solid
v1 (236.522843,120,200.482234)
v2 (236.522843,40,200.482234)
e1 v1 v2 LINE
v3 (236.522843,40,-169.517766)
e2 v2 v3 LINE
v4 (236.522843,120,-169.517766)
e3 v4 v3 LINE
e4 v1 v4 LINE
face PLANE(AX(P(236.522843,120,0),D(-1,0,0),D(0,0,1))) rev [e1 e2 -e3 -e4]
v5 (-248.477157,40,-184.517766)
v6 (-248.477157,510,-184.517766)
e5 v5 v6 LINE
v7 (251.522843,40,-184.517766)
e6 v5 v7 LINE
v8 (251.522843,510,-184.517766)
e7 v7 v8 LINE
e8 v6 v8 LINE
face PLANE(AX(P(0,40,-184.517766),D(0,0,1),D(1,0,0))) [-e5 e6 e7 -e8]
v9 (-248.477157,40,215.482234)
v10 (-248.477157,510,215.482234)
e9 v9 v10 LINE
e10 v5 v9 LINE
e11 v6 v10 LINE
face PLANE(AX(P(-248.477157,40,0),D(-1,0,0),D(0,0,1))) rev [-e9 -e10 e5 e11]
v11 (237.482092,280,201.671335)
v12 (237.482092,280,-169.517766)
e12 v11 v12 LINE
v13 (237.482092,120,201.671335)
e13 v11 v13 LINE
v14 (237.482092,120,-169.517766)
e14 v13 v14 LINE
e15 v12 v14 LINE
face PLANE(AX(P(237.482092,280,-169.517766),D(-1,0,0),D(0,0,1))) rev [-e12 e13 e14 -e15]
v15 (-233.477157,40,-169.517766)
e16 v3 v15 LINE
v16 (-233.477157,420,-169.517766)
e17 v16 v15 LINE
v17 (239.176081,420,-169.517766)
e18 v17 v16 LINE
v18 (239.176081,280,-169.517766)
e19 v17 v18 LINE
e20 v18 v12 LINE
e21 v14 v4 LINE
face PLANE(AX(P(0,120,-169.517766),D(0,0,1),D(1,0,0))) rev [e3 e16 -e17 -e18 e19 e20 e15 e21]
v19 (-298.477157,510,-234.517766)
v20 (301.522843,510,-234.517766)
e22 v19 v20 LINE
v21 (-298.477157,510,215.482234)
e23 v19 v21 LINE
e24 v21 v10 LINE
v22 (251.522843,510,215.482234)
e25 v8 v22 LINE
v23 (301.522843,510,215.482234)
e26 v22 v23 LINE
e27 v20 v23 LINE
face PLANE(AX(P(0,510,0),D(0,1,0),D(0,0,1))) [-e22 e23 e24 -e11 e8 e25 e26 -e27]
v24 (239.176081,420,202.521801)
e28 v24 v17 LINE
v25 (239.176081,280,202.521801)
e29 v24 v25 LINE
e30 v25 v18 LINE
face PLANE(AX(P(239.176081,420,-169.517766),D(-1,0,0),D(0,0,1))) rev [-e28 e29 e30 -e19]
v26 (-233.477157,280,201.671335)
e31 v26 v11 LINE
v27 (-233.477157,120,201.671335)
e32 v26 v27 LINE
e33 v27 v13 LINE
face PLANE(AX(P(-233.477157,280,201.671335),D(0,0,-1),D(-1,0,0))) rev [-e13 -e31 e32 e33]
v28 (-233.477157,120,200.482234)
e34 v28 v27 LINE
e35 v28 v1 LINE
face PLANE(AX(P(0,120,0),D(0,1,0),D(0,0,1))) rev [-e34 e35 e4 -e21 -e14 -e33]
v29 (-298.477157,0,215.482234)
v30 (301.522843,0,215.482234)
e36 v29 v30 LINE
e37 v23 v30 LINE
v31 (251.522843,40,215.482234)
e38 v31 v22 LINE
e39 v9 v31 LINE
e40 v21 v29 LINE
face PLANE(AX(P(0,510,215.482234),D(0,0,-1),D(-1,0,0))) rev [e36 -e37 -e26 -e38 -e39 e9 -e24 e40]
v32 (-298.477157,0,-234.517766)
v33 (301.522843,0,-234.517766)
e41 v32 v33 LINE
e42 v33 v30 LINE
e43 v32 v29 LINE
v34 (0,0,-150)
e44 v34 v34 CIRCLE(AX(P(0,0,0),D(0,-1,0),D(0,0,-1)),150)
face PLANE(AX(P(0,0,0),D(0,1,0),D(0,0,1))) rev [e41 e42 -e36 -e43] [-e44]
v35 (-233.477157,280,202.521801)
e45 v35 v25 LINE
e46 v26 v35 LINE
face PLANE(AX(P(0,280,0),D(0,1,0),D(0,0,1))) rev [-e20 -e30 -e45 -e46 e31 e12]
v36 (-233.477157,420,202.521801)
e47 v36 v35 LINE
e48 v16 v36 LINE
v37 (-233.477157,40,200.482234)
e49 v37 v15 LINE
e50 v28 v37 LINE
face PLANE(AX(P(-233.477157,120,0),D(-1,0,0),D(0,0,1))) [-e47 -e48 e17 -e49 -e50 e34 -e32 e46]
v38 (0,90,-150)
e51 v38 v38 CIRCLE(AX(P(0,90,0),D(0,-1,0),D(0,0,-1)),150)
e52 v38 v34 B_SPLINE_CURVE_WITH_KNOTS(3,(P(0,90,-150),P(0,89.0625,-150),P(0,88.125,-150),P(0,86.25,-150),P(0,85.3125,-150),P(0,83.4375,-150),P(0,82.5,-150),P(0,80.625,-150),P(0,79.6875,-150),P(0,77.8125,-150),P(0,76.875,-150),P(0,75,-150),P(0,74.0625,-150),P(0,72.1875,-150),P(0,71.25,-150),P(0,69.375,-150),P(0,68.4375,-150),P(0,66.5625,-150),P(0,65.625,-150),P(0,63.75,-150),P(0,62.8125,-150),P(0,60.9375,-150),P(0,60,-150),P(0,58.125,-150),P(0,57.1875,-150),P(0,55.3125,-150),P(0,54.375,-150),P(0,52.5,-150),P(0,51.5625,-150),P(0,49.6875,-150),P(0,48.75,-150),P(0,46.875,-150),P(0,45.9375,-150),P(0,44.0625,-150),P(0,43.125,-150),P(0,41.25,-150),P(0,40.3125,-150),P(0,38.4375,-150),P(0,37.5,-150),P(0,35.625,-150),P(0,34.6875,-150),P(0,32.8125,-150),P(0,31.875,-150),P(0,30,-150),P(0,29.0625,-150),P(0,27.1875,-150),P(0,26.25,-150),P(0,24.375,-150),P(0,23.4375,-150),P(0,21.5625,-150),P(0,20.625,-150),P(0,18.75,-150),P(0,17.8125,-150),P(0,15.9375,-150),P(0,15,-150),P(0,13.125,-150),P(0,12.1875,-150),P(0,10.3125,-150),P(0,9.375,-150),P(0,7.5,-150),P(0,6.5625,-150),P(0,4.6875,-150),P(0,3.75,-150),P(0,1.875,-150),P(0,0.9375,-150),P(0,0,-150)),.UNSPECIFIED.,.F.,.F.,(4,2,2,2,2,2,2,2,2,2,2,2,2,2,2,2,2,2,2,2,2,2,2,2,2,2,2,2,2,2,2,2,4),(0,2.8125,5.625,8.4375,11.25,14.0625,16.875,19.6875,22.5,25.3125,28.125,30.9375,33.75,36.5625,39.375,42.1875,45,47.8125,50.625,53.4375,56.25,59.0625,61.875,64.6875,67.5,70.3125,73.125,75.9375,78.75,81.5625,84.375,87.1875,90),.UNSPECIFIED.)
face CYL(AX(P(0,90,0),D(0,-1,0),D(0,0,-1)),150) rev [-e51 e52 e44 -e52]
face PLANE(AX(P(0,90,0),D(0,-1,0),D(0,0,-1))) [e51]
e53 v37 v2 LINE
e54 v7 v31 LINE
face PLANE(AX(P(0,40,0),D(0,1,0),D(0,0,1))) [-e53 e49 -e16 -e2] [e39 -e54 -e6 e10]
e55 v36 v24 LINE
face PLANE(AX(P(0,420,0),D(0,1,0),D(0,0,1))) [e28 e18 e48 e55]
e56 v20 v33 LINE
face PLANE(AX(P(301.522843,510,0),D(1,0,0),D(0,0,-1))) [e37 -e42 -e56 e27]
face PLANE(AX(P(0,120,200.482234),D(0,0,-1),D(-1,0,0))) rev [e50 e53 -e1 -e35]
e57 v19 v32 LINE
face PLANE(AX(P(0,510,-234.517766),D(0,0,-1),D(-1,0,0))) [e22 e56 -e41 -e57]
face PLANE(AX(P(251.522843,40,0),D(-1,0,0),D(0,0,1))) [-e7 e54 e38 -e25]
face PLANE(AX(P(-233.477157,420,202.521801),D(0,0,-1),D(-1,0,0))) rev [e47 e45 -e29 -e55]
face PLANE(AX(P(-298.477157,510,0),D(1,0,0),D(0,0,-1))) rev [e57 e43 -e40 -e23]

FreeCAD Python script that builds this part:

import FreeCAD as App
import Part
import Sketcher
from FreeCAD import Vector


def add_polygon(sketch, points):
    """Adds a closed chain of lines whose ends are joined by coincident constraints."""
    first, n = sketch.GeometryCount, len(points)
    for a, b in zip(points, points[1:] + points[:1]):
        sketch.addGeometry(Part.LineSegment(App.Vector(*a, 0), App.Vector(*b, 0)), False)
    for i in range(n):
        sketch.addConstraint(Sketcher.Constraint("Coincident", first + i, 2, first + (i + 1) % n, 1))

doc = App.newDocument("Part")
body = doc.addObject("PartDesign::Body", "Body")

sketch1 = body.newObject("Sketcher::SketchObject", "Sketch")
sketch1.AttachmentSupport = (doc.getObject("XZ_Plane"), [""])
sketch1.MapMode = "FlatFace"
add_polygon(sketch1, [(-298, -235), (-298, 215), (302, 215), (302, -235)])
sketch1.addConstraint(Sketcher.Constraint("Vertical", 0))
sketch1.addConstraint(Sketcher.Constraint("Horizontal", 1))
sketch1.addConstraint(Sketcher.Constraint("Vertical", 2))
sketch1.addConstraint(Sketcher.Constraint("Horizontal", 3))
sketch1.addConstraint(Sketcher.Constraint("DistanceX", 1, 1, 1, 2, 600.0))
sketch1.addConstraint(Sketcher.Constraint("DistanceY", 0, 1, 0, 2, 450.0))
sketch1.addConstraint(Sketcher.Constraint("DistanceX", 0, 2, -1, 1, 298.477157))
sketch1.addConstraint(Sketcher.Constraint("DistanceY", -1, 1, 0, 2, 215.482234))
pad1 = body.newObject("PartDesign::Pad", "Pad")
pad1.Profile = sketch1
pad1.Length = 510
pad1.Reversed = True

sketch2 = body.newObject("Sketcher::SketchObject", "Sketch001")
sketch2.AttachmentSupport = (doc.getObject("XZ_Plane"), [""])
sketch2.MapMode = "FlatFace"
sketch2.AttachmentOffset = App.Placement(Vector(0, 0, -510), App.Rotation())
add_polygon(sketch2, [(-248, -185), (-248, 215), (252, 215), (252, -185)])
sketch2.addConstraint(Sketcher.Constraint("Vertical", 0))
sketch2.addConstraint(Sketcher.Constraint("Horizontal", 1))
sketch2.addConstraint(Sketcher.Constraint("Vertical", 2))
sketch2.addConstraint(Sketcher.Constraint("Horizontal", 3))
sketch2.addConstraint(Sketcher.Constraint("DistanceX", 1, 1, 1, 2, 500.0))
sketch2.addConstraint(Sketcher.Constraint("DistanceY", 0, 1, 0, 2, 400.0))
sketch2.addConstraint(Sketcher.Constraint("DistanceX", 0, 2, -1, 1, 248.477157))
sketch2.addConstraint(Sketcher.Constraint("DistanceY", -1, 1, 0, 2, 215.482234))
pocket1 = body.newObject("PartDesign::Pocket", "Pocket")
pocket1.Profile = sketch2
pocket1.Length = 470
pocket1.Reversed = True

sketch3 = body.newObject("Sketcher::SketchObject", "Sketch002")
sketch3.AttachmentSupport = (doc.getObject("XZ_Plane"), [""])
sketch3.MapMode = "FlatFace"
sketch3.AttachmentOffset = App.Placement(Vector(0, 0, -40), App.Rotation())
add_polygon(sketch3, [(-233, -170), (-233, 200), (237, 200), (237, -170)])
sketch3.addConstraint(Sketcher.Constraint("Vertical", 0))
sketch3.addConstraint(Sketcher.Constraint("Horizontal", 1))
sketch3.addConstraint(Sketcher.Constraint("Vertical", 2))
sketch3.addConstraint(Sketcher.Constraint("Horizontal", 3))
sketch3.addConstraint(Sketcher.Constraint("DistanceX", 1, 1, 1, 2, 470.0))
sketch3.addConstraint(Sketcher.Constraint("DistanceY", 0, 1, 0, 2, 370.0))
sketch3.addConstraint(Sketcher.Constraint("DistanceX", 0, 2, -1, 1, 233.477157))
sketch3.addConstraint(Sketcher.Constraint("DistanceY", -1, 1, 0, 2, 200.482234))
pad2 = body.newObject("PartDesign::Pad", "Pad001")
pad2.Profile = sketch3
pad2.Length = 80
pad2.Reversed = True

sketch4 = body.newObject("Sketcher::SketchObject", "Sketch003")
sketch4.AttachmentSupport = (doc.getObject("XZ_Plane"), [""])
sketch4.MapMode = "FlatFace"
sketch4.AttachmentOffset = App.Placement(Vector(0, 0, -120), App.Rotation())
add_polygon(sketch4, [(-233, -170), (-233, 202), (237, 202), (237, -170)])
sketch4.addConstraint(Sketcher.Constraint("Vertical", 0))
sketch4.addConstraint(Sketcher.Constraint("Horizontal", 1))
sketch4.addConstraint(Sketcher.Constraint("Vertical", 2))
sketch4.addConstraint(Sketcher.Constraint("Horizontal", 3))
sketch4.addConstraint(Sketcher.Constraint("DistanceY", 0, 1, 0, 2, 371.189101))
sketch4.addConstraint(Sketcher.Constraint("DistanceX", 1, 1, 1, 2, 470.95925))
sketch4.addConstraint(Sketcher.Constraint("DistanceX", 0, 2, -1, 1, 233.477157))
sketch4.addConstraint(Sketcher.Constraint("DistanceY", -1, 1, 0, 2, 201.671335))
pad3 = body.newObject("PartDesign::Pad", "Pad002")
pad3.Profile = sketch4
pad3.Length = 160
pad3.Reversed = True

sketch5 = body.newObject("Sketcher::SketchObject", "Sketch004")
sketch5.AttachmentSupport = (doc.getObject("XZ_Plane"), [""])
sketch5.MapMode = "FlatFace"
sketch5.AttachmentOffset = App.Placement(Vector(0, 0, -280), App.Rotation())
add_polygon(sketch5, [(-233, -170), (-233, 203), (239, 203), (239, -170)])
sketch5.addConstraint(Sketcher.Constraint("Vertical", 0))
sketch5.addConstraint(Sketcher.Constraint("Horizontal", 1))
sketch5.addConstraint(Sketcher.Constraint("Vertical", 2))
sketch5.addConstraint(Sketcher.Constraint("Horizontal", 3))
sketch5.addConstraint(Sketcher.Constraint("DistanceX", 1, 1, 1, 2, 472.653238))
sketch5.addConstraint(Sketcher.Constraint("DistanceY", -1, 1, 0, 2, 202.521801))
sketch5.addConstraint(Sketcher.Constraint("DistanceY", 0, 1, 0, 2, 372.039567))
sketch5.addConstraint(Sketcher.Constraint("DistanceX", -1, 1, 1, 2, 239.176081))
pad4 = body.newObject("PartDesign::Pad", "Pad003")
pad4.Profile = sketch5
pad4.Length = 140
pad4.Reversed = True

sketch6 = body.newObject("Sketcher::SketchObject", "Sketch005")
sketch6.AttachmentSupport = (doc.getObject("XZ_Plane"), [""])
sketch6.MapMode = "FlatFace"
sketch6.addGeometry(Part.Circle(Vector(0, 0, 0), Vector(0, 0, 1), 150), False)
sketch6.addConstraint(Sketcher.Constraint("Coincident", 0, 3, -1, 1))
sketch6.addConstraint(Sketcher.Constraint("Diameter", 0, 300.0))
pocket2 = body.newObject("PartDesign::Pocket", "Pocket001")
pocket2.Profile = sketch6
pocket2.Length = 90

doc.recompute()
